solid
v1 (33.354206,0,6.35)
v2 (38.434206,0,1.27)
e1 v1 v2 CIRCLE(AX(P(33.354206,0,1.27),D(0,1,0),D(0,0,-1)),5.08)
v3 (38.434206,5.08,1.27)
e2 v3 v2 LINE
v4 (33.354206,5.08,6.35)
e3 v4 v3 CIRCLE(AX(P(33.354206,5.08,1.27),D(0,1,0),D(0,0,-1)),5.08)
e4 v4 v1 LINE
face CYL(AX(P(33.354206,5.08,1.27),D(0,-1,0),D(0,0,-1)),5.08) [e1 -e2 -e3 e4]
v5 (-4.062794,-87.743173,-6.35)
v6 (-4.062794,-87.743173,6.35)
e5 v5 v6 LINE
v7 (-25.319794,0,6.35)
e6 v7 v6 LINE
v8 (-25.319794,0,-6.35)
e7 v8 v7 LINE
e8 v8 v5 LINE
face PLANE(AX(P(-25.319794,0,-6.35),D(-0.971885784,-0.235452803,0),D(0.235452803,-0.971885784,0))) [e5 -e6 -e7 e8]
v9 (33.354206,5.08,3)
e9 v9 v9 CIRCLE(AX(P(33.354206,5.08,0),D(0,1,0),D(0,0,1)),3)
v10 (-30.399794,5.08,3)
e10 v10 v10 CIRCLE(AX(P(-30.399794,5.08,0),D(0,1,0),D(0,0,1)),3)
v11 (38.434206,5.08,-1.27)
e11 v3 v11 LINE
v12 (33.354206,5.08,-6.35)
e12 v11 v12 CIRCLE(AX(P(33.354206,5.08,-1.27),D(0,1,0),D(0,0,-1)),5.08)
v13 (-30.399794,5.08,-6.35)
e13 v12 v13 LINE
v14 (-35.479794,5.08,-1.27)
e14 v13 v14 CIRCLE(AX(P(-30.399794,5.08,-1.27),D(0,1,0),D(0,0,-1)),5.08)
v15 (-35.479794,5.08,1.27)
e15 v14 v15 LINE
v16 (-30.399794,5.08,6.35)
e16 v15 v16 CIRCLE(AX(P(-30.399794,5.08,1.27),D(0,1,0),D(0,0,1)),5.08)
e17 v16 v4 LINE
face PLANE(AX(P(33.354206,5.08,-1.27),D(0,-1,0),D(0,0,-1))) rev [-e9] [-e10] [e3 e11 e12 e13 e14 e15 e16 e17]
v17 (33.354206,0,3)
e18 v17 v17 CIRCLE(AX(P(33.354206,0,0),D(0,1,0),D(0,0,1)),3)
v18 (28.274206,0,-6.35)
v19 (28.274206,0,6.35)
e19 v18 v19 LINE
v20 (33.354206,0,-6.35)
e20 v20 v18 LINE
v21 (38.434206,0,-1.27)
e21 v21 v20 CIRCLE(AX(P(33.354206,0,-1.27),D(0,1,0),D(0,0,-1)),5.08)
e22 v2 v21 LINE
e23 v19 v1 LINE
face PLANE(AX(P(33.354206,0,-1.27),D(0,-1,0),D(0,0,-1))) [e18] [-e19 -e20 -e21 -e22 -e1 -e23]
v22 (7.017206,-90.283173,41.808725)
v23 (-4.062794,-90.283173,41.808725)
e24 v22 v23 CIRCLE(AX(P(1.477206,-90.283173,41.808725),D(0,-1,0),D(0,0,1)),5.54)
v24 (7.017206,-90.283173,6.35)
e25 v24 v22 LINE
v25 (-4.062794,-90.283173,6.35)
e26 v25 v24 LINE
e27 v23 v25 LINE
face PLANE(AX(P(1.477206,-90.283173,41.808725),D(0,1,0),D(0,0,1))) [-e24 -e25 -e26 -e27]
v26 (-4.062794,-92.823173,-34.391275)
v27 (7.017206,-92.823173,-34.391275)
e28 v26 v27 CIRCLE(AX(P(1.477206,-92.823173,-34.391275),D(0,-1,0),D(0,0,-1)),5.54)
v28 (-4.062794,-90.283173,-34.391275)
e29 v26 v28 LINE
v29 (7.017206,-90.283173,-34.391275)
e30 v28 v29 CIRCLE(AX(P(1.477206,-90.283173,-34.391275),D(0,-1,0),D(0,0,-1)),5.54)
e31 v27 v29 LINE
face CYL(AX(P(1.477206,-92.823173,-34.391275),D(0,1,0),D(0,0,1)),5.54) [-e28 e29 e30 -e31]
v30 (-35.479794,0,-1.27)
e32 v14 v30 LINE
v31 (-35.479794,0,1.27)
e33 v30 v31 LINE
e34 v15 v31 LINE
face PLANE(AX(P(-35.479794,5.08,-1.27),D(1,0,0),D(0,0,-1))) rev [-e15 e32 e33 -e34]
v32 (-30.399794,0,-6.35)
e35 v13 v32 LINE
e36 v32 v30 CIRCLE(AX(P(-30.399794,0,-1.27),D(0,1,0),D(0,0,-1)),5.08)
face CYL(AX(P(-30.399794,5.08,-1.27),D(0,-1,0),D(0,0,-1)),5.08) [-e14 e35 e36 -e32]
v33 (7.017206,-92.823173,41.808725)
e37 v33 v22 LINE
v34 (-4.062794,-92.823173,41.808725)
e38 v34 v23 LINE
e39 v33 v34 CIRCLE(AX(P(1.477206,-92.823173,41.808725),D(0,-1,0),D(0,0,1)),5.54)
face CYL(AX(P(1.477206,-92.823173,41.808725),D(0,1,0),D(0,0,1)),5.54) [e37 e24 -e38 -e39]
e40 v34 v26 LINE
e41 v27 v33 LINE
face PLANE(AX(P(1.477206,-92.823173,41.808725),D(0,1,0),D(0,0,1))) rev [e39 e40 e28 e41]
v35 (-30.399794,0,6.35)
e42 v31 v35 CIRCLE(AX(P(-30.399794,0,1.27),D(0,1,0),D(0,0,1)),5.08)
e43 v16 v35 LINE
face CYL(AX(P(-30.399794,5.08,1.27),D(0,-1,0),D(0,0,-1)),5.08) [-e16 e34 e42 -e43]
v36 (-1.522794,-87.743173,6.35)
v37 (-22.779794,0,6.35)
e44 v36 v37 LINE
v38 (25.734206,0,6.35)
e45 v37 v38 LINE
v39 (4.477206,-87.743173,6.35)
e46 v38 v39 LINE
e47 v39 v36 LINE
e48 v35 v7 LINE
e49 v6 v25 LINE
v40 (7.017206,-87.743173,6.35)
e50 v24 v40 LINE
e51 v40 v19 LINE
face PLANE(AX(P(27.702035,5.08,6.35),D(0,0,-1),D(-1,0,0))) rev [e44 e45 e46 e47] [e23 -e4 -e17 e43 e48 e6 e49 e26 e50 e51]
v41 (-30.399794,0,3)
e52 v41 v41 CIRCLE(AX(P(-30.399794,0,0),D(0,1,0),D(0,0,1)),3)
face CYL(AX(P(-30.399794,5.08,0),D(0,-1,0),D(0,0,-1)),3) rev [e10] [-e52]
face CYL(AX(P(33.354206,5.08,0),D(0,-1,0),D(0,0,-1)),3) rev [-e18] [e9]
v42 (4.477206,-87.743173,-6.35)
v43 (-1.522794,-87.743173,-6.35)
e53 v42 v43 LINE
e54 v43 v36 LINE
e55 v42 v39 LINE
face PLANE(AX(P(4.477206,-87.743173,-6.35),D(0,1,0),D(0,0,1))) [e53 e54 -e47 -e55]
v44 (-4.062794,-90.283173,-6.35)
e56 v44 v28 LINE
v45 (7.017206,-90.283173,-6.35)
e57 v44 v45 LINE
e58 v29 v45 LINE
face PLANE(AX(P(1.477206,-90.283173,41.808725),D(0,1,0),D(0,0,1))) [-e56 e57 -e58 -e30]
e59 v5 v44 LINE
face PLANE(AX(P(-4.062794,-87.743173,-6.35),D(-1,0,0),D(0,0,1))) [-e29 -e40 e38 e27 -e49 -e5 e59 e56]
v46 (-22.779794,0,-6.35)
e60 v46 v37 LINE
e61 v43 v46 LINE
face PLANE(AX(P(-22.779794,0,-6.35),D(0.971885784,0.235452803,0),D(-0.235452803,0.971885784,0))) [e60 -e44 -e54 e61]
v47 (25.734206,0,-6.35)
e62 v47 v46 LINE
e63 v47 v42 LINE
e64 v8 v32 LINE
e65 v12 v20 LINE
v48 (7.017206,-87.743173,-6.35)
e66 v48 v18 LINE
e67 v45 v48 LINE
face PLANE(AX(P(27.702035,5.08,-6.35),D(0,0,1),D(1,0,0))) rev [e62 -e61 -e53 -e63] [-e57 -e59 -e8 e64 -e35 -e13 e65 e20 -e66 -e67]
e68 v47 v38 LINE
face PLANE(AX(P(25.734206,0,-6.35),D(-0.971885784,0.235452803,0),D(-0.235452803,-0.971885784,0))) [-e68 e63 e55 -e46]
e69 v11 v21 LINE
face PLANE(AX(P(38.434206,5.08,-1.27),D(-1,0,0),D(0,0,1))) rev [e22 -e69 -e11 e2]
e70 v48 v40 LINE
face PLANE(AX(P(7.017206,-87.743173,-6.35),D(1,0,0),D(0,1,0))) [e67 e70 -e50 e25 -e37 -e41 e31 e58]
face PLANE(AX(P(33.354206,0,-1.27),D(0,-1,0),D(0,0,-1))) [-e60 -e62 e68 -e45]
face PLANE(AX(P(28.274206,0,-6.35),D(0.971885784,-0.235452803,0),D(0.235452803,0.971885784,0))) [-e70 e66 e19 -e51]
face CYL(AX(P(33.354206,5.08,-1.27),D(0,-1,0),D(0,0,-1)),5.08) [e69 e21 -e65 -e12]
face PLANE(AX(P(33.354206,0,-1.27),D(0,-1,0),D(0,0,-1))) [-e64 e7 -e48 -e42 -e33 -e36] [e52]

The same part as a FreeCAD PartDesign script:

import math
import FreeCAD as App
import Part
import Sketcher
from FreeCAD import Vector
Q = App.Units.Quantity

doc = App.newDocument("Part")
body = doc.addObject("PartDesign::Body", "Body")

# Sketch on XZ plane
sketch1 = body.newObject("Sketcher::SketchObject", "Sketch")
sketch1.AttachmentSupport = (doc.getObject("XZ_Plane"), [""])
sketch1.MapMode = "FlatFace"
sketch1.addGeometry(Part.ArcOfCircle(Part.Circle(Vector(-30.4, -1.3, 0), Vector(0, 0, 1), 5.1), math.radians(-180), math.radians(-90)), False)
sketch1.addGeometry(Part.LineSegment(Vector(-35.5, -1.3, 0), Vector(-35.5, 1.3, 0)), False)
sketch1.addGeometry(Part.ArcOfCircle(Part.Circle(Vector(-30.4, 1.3, 0), Vector(0, 0, 1), 5.1), math.radians(90), math.radians(180)), False)
sketch1.addGeometry(Part.LineSegment(Vector(-30.4, 6.3, 0), Vector(33.4, 6.3, 0)), False)
sketch1.addGeometry(Part.ArcOfCircle(Part.Circle(Vector(33.4, 1.3, 0), Vector(0, 0, 1), 5.1), math.radians(0), math.radians(90)), False)
sketch1.addGeometry(Part.LineSegment(Vector(38.4, 1.3, 0), Vector(38.4, -1.3, 0)), False)
sketch1.addGeometry(Part.ArcOfCircle(Part.Circle(Vector(33.4, -1.3, 0), Vector(0, 0, 1), 5.1), math.radians(-90), math.radians(0)), False)
sketch1.addGeometry(Part.LineSegment(Vector(33.4, -6.3, 0), Vector(-30.4, -6.3, 0)), False)
sketch1.addGeometry(Part.Circle(Vector(-30.4, 0, 0), Vector(0, 0, 1), 3), False)
sketch1.addGeometry(Part.Circle(Vector(33.4, 0, 0), Vector(0, 0, 1), 3), False)
sketch1.addConstraint(Sketcher.Constraint("Tangent", 0, 1, 1, 1))
sketch1.addConstraint(Sketcher.Constraint("Tangent", 1, 2, 2, 2))
sketch1.addConstraint(Sketcher.Constraint("Tangent", 2, 1, 3, 1))
sketch1.addConstraint(Sketcher.Constraint("Tangent", 3, 2, 4, 2))
sketch1.addConstraint(Sketcher.Constraint("Tangent", 4, 1, 5, 1))
sketch1.addConstraint(Sketcher.Constraint("Tangent", 5, 2, 6, 2))
sketch1.addConstraint(Sketcher.Constraint("Tangent", 6, 1, 7, 1))
sketch1.addConstraint(Sketcher.Constraint("Tangent", 7, 2, 0, 2))
sketch1.addConstraint(Sketcher.Constraint("Vertical", 1))
sketch1.addConstraint(Sketcher.Constraint("Horizontal", 3))
sketch1.addConstraint(Sketcher.Constraint("Vertical", 5))
sketch1.addConstraint(Sketcher.Constraint("Horizontal", 7))
sketch1.addConstraint(Sketcher.Constraint("Equal", 0, 2))
sketch1.addConstraint(Sketcher.Constraint("Equal", 2, 4))
sketch1.addConstraint(Sketcher.Constraint("Equal", 4, 6))
sketch1.addConstraint(Sketcher.Constraint("Equal", 8, 9))
sketch1.addConstraint(Sketcher.Constraint("PointOnObject", 8, 3, -1))
sketch1.addConstraint(Sketcher.Constraint("PointOnObject", 9, 3, -1))
sketch1.addConstraint(Sketcher.Constraint("Vertical", 2, 3, 8, 3))
sketch1.addConstraint(Sketcher.Constraint("Vertical", 6, 3, 9, 3))
sketch1.addConstraint(Sketcher.Constraint("Radius", 0, Q("0.2 in")))
sketch1.addConstraint(Sketcher.Constraint("DistanceY", 1, 1, 1, 2, Q("0.1 in")))
sketch1.addConstraint(Sketcher.Constraint("DistanceX", 3, 1, 3, 2, Q("2.51 in")))
sketch1.addConstraint(Sketcher.Constraint("Diameter", 8, 6.0))
sketch1.addConstraint(Sketcher.Constraint("DistanceY", 0, 3, -1, 1, Q("0.05 in")))
sketch1.addConstraint(Sketcher.Constraint("DistanceX", 0, 3, -1, 1, 30.399794))
pad1 = body.newObject("PartDesign::Pad", "Pad")
pad1.Profile = sketch1
pad1.Length = Q("0.2 in")
pad1.Reversed = True

# Sketch on XY plane
sketch2 = body.newObject("Sketcher::SketchObject", "Sketch001")
sketch2.AttachmentSupport = (doc.getObject("XY_Plane"), [""])
sketch2.MapMode = "FlatFace"
sketch2.AttachmentOffset = App.Placement(Vector(0, 0, 0.25 * 25.4), App.Rotation())
sketch2.addGeometry(Part.LineSegment(Vector(-25.3, 0, 0), Vector(-4.1, -87.7, 0)), False)
sketch2.addGeometry(Part.LineSegment(Vector(-4.1, -87.7, 0), Vector(-4.1, -90.3, 0)), False)
sketch2.addGeometry(Part.LineSegment(Vector(-4.1, -90.3, 0), Vector(7, -90.3, 0)), False)
sketch2.addGeometry(Part.LineSegment(Vector(7, -90.3, 0), Vector(7, -87.7, 0)), False)
sketch2.addGeometry(Part.LineSegment(Vector(7, -87.7, 0), Vector(28.3, 0, 0)), False)
sketch2.addGeometry(Part.LineSegment(Vector(28.3, 0, 0), Vector(25.7, 0, 0)), False)
sketch2.addGeometry(Part.LineSegment(Vector(25.7, 0, 0), Vector(4.5, -87.7, 0)), False)
sketch2.addGeometry(Part.LineSegment(Vector(4.5, -87.7, 0), Vector(-1.5, -87.7, 0)), False)
sketch2.addGeometry(Part.LineSegment(Vector(-1.5, -87.7, 0), Vector(-22.8, 0, 0)), False)
sketch2.addGeometry(Part.LineSegment(Vector(-22.8, 0, 0), Vector(-25.3, 0, 0)), False)
sketch2.addConstraint(Sketcher.Constraint("Coincident", 0, 2, 1, 1))
sketch2.addConstraint(Sketcher.Constraint("Coincident", 1, 2, 2, 1))
sketch2.addConstraint(Sketcher.Constraint("Coincident", 2, 2, 3, 1))
sketch2.addConstraint(Sketcher.Constraint("Coincident", 3, 2, 4, 1))
sketch2.addConstraint(Sketcher.Constraint("Coincident", 4, 2, 5, 1))
sketch2.addConstraint(Sketcher.Constraint("Coincident", 5, 2, 6, 1))
sketch2.addConstraint(Sketcher.Constraint("Coincident", 6, 2, 7, 1))
sketch2.addConstraint(Sketcher.Constraint("Coincident", 7, 2, 8, 1))
sketch2.addConstraint(Sketcher.Constraint("Coincident", 8, 2, 9, 1))
sketch2.addConstraint(Sketcher.Constraint("Coincident", 9, 2, 0, 1))
sketch2.addConstraint(Sketcher.Constraint("Vertical", 1))
sketch2.addConstraint(Sketcher.Constraint("Horizontal", 2))
sketch2.addConstraint(Sketcher.Constraint("Vertical", 3))
sketch2.addConstraint(Sketcher.Constraint("Horizontal", 5))
sketch2.addConstraint(Sketcher.Constraint("Horizontal", 7))
sketch2.addConstraint(Sketcher.Constraint("Horizontal", 9))
sketch2.addConstraint(Sketcher.Constraint("PointOnObject", 4, 2, -1))
sketch2.addConstraint(Sketcher.Constraint("PointOnObject", 8, 2, -1))
sketch2.addConstraint(Sketcher.Constraint("Parallel", 4, 6))
sketch2.addConstraint(Sketcher.Constraint("Parallel", 0, 8))
sketch2.addConstraint(Sketcher.Constraint("Horizontal", 0, 2, 3, 2))
sketch2.addConstraint(Sketcher.Constraint("Horizontal", 3, 2, 6, 2))
sketch2.addConstraint(Sketcher.Constraint("Equal", 5, 9))
sketch2.addConstraint(Sketcher.Constraint("Equal", 9, 1))
sketch2.addConstraint(Sketcher.Constraint("Equal", 0, 4))
sketch2.addConstraint(Sketcher.Constraint("DistanceX", 5, 2, 5, 1, Q("0.1 in")))
sketch2.addConstraint(Sketcher.Constraint("DistanceX", 8, 2, 5, 2, Q("1.91 in")))
sketch2.addConstraint(Sketcher.Constraint("DistanceX", 2, 1, 2, 2, 11.08))
sketch2.addConstraint(Sketcher.Constraint("Distance", 0, 90.281363))
sketch2.addConstraint(Sketcher.Constraint("DistanceX", 0, 2, -1, 1, 4.062794))
pad2 = body.newObject("PartDesign::Pad", "Pad001")
pad2.Profile = sketch2
pad2.Length = Q("0.5 in")
pad2.Reversed = True

# Sketch on XZ plane
sketch3 = body.newObject("Sketcher::SketchObject", "Sketch002")
sketch3.AttachmentSupport = (doc.getObject("XZ_Plane"), [""])
sketch3.MapMode = "FlatFace"
sketch3.AttachmentOffset = App.Placement(Vector(0, 0, 90.283173), App.Rotation())
sketch3.addGeometry(Part.LineSegment(Vector(-4, 42, 0), Vector(-4, -34, 0)), False)
sketch3.addGeometry(Part.ArcOfCircle(Part.Circle(Vector(1, -34, 0), Vector(0, 0, 1), 6), math.radians(180), math.radians(360)), False)
sketch3.addGeometry(Part.LineSegment(Vector(7, -34, 0), Vector(7, 42, 0)), False)
sketch3.addGeometry(Part.ArcOfCircle(Part.Circle(Vector(1, 42, 0), Vector(0, 0, 1), 6), math.radians(0), math.radians(180)), False)
sketch3.addConstraint(Sketcher.Constraint("Tangent", 0, 2, 1, 1))
sketch3.addConstraint(Sketcher.Constraint("Tangent", 1, 2, 2, 1))
sketch3.addConstraint(Sketcher.Constraint("Tangent", 2, 2, 3, 1))
sketch3.addConstraint(Sketcher.Constraint("Tangent", 3, 2, 0, 1))
sketch3.addConstraint(Sketcher.Constraint("Vertical", 0))
sketch3.addConstraint(Sketcher.Constraint("Vertical", 2))
sketch3.addConstraint(Sketcher.Constraint("DistanceY", 0, 2, 0, 1, Q("3 in")))
sketch3.addConstraint(Sketcher.Constraint("Radius", 1, 5.54))
sketch3.addConstraint(Sketcher.Constraint("DistanceX", -1, 1, 1, 3, 1.477206))
sketch3.addConstraint(Sketcher.Constraint("DistanceY", 1, 3, -1, 1, 34.391275))
pad3 = body.newObject("PartDesign::Pad", "Pad002")
pad3.Profile = sketch3
pad3.Length = Q("0.1 in")

doc.recompute()
